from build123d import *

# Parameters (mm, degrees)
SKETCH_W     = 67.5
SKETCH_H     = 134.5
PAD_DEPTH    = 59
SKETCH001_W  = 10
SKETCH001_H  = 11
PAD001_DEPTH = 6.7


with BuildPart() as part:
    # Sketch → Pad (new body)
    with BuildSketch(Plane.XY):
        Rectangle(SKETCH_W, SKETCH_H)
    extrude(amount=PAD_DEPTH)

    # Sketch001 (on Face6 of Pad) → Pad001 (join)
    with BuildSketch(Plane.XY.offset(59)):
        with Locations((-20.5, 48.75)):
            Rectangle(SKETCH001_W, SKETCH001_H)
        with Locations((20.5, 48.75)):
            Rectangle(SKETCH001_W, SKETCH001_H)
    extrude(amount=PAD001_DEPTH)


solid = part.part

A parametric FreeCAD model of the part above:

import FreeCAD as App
import Part
import Sketcher
Q = App.Units.Quantity


def add_polygon(sketch, points):
    """Adds a closed chain of lines whose ends are joined by coincident constraints."""
    first, n = sketch.GeometryCount, len(points)
    for a, b in zip(points, points[1:] + points[:1]):
        sketch.addGeometry(Part.LineSegment(App.Vector(*a, 0), App.Vector(*b, 0)), False)
    for i in range(n):
        sketch.addConstraint(Sketcher.Constraint("Coincident", first + i, 2, first + (i + 1) % n, 1))

doc = App.newDocument("Part")
body = doc.addObject("PartDesign::Body", "Body")

# Sketch on XY plane
sketch1 = body.newObject("Sketcher::SketchObject", "Sketch")
sketch1.AttachmentSupport = (doc.getObject("XY_Plane"), [""])
sketch1.MapMode = "FlatFace"
add_polygon(sketch1, [(-34, 67), (-34, -67), (34, -67), (34, 67)])  # lines 0-3
sketch1.addConstraint([
    Sketcher.Constraint("Vertical", 0),
    Sketcher.Constraint("Horizontal", 1),
    Sketcher.Constraint("Vertical", 2),
    Sketcher.Constraint("Horizontal", 3),
    Sketcher.Constraint("Symmetric", 0, 2, 2, 2, -1, 1),
    Sketcher.Constraint("DistanceX", 1, 1, 1, 2, Q("67.5 mm")),
    Sketcher.Constraint("DistanceY", 0, 2, 0, 1, Q("134.5 mm")),
])
pad1 = body.newObject("PartDesign::Pad", "Pad")
pad1.Profile = sketch1
pad1.Length = 59

# Sketch on XY plane
sketch2 = body.newObject("Sketcher::SketchObject", "Sketch001")
sketch2.AttachmentSupport = (doc.getObject("XY_Plane"), [""])
sketch2.MapMode = "FlatFace"
sketch2.AttachmentOffset = App.Placement(App.Vector(0, 0, 59), App.Rotation())
add_polygon(sketch2, [(-26, 54), (-26, 43), (-16, 43), (-16, 54)])  # lines 0-3
add_polygon(sketch2, [(16, 54), (16, 43), (26, 43), (26, 54)])  # lines 4-7
sketch2.addConstraint([
    Sketcher.Constraint("Vertical", 0),
    Sketcher.Constraint("Horizontal", 1),
    Sketcher.Constraint("Vertical", 2),
    Sketcher.Constraint("Horizontal", 3),
    Sketcher.Constraint("Vertical", 4),
    Sketcher.Constraint("Horizontal", 5),
    Sketcher.Constraint("Vertical", 6),
    Sketcher.Constraint("Horizontal", 7),
    Sketcher.Constraint("Symmetric", 1, 2, 4, 2, -2),
    Sketcher.Constraint("Symmetric", 3, 2, 6, 2, -2),
    Sketcher.Constraint("DistanceX", 1, 1, 1, 2, Q("10 mm")),
    Sketcher.Constraint("DistanceY", 0, 2, 0, 1, Q("11 mm")),
    Sketcher.Constraint("DistanceX", 1, 2, 4, 2, Q("31 mm")),
    Sketcher.Constraint("DistanceY", -1, 1, 0, 2, Q("43.25 mm")),
])
pad2 = body.newObject("PartDesign::Pad", "Pad001")
pad2.Profile = sketch2
pad2.Length = 6.7

doc.recompute()
